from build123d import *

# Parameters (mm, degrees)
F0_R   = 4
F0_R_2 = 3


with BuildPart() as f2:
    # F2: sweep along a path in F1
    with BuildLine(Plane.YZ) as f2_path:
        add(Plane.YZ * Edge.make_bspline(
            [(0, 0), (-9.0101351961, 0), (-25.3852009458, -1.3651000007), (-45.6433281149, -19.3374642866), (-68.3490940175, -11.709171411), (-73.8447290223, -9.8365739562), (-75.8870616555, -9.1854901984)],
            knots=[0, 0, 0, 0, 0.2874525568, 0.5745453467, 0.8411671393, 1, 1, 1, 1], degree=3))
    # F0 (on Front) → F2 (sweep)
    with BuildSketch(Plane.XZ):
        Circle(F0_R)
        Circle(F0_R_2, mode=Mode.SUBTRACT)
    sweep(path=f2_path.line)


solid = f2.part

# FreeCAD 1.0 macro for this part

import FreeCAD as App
import Part
import Sketcher
from FreeCAD import Vector

doc = App.newDocument("Part")
body = doc.addObject("PartDesign::Body", "Body")

sketch1 = body.newObject("Sketcher::SketchObject", "Sketch")
sketch1.AttachmentSupport = (doc.getObject("XZ_Plane"), [""])
sketch1.MapMode = "FlatFace"
sketch1.addGeometry([
    Part.Circle(Vector(0, 0, 0), Vector(0, 0, 1), 4),
    Part.Circle(Vector(0, 0, 0), Vector(0, 0, 1), 3),
], False)
sketch1.addConstraint([
    Sketcher.Constraint("Coincident", 0, 3, -1, 1),
    Sketcher.Constraint("Coincident", 1, 3, -1, 1),
    Sketcher.Constraint("Diameter", 0, 8.0),
    Sketcher.Constraint("Diameter", 1, 6.0),
])

sketch2 = body.newObject("Sketcher::SketchObject", "Sketch001")
sketch2.AttachmentSupport = (doc.getObject("YZ_Plane"), [""])
sketch2.MapMode = "FlatFace"
sketch2.addGeometry(Part.BSplineCurve([Vector(0, 0, 0), Vector(-9.010135, 0, 0), Vector(-25.385201, -1.3651, 0), Vector(-45.643328, -19.337464, 0), Vector(-68.349094, -11.709171, 0), Vector(-73.844729, -9.836574, 0), Vector(-75.887062, -9.18549, 0)], [4, 1, 1, 1, 4], [0, 0.287452557, 0.574545347, 0.841167139, 1], False, 3, [1, 1, 1, 1, 1, 1, 1], False), False)
sketch2.addConstraint(Sketcher.Constraint("Block", 0))
doc.recompute()

additivepipe = body.newObject("PartDesign::AdditivePipe", "AdditivePipe")
additivepipe.Profile = sketch1
additivepipe.Spine = (sketch2, ["Edge1"])

doc.recompute()
